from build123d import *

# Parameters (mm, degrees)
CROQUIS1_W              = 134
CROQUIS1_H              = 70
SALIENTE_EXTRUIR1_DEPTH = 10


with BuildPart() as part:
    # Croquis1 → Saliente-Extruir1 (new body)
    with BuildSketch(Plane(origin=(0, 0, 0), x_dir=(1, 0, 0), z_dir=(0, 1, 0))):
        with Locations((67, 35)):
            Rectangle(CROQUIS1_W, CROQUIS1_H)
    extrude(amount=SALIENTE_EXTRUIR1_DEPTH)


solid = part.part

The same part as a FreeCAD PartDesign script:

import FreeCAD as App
import Part
import Sketcher
from FreeCAD import Vector

doc = App.newDocument("Part")
body = doc.addObject("PartDesign::Body", "Body")

sketch1 = doc.addObject("Sketcher::SketchObject", "Sketch")
body.addObject(sketch1)
sketch1.AttachmentSupport = (doc.XZ_Plane, [""])
sketch1.MapMode = "FlatFace"
sketch1.addGeometry([
    Part.LineSegment(Vector(0, -70, 0), Vector(0, 0, 0)),
    Part.LineSegment(Vector(0, 0, 0), Vector(134, 0, 0)),
    Part.LineSegment(Vector(134, 0, 0), Vector(134, -70, 0)),
    Part.LineSegment(Vector(134, -70, 0), Vector(0, -70, 0)),
], False)
sketch1.addConstraint([
    Sketcher.Constraint("Coincident", 0, 2, 1, 1),
    Sketcher.Constraint("Coincident", 1, 2, 2, 1),
    Sketcher.Constraint("Coincident", 2, 2, 3, 1),
    Sketcher.Constraint("Coincident", 3, 2, 0, 1),
    Sketcher.Constraint("Vertical", 0),
    Sketcher.Constraint("Horizontal", 1),
    Sketcher.Constraint("Vertical", 2),
    Sketcher.Constraint("Horizontal", 3),
    Sketcher.Constraint("Coincident", 0, 2, -1, 1),
    Sketcher.Constraint("DistanceX", 1, 1, 1, 2, 134.0),
    Sketcher.Constraint("DistanceY", 0, 1, 0, 2, 70.0),
])
pad1 = doc.addObject("PartDesign::Pad", "Pad")
body.addObject(pad1)
pad1.Profile = sketch1
pad1.Length = 10
pad1.Reversed = True

doc.recompute()
